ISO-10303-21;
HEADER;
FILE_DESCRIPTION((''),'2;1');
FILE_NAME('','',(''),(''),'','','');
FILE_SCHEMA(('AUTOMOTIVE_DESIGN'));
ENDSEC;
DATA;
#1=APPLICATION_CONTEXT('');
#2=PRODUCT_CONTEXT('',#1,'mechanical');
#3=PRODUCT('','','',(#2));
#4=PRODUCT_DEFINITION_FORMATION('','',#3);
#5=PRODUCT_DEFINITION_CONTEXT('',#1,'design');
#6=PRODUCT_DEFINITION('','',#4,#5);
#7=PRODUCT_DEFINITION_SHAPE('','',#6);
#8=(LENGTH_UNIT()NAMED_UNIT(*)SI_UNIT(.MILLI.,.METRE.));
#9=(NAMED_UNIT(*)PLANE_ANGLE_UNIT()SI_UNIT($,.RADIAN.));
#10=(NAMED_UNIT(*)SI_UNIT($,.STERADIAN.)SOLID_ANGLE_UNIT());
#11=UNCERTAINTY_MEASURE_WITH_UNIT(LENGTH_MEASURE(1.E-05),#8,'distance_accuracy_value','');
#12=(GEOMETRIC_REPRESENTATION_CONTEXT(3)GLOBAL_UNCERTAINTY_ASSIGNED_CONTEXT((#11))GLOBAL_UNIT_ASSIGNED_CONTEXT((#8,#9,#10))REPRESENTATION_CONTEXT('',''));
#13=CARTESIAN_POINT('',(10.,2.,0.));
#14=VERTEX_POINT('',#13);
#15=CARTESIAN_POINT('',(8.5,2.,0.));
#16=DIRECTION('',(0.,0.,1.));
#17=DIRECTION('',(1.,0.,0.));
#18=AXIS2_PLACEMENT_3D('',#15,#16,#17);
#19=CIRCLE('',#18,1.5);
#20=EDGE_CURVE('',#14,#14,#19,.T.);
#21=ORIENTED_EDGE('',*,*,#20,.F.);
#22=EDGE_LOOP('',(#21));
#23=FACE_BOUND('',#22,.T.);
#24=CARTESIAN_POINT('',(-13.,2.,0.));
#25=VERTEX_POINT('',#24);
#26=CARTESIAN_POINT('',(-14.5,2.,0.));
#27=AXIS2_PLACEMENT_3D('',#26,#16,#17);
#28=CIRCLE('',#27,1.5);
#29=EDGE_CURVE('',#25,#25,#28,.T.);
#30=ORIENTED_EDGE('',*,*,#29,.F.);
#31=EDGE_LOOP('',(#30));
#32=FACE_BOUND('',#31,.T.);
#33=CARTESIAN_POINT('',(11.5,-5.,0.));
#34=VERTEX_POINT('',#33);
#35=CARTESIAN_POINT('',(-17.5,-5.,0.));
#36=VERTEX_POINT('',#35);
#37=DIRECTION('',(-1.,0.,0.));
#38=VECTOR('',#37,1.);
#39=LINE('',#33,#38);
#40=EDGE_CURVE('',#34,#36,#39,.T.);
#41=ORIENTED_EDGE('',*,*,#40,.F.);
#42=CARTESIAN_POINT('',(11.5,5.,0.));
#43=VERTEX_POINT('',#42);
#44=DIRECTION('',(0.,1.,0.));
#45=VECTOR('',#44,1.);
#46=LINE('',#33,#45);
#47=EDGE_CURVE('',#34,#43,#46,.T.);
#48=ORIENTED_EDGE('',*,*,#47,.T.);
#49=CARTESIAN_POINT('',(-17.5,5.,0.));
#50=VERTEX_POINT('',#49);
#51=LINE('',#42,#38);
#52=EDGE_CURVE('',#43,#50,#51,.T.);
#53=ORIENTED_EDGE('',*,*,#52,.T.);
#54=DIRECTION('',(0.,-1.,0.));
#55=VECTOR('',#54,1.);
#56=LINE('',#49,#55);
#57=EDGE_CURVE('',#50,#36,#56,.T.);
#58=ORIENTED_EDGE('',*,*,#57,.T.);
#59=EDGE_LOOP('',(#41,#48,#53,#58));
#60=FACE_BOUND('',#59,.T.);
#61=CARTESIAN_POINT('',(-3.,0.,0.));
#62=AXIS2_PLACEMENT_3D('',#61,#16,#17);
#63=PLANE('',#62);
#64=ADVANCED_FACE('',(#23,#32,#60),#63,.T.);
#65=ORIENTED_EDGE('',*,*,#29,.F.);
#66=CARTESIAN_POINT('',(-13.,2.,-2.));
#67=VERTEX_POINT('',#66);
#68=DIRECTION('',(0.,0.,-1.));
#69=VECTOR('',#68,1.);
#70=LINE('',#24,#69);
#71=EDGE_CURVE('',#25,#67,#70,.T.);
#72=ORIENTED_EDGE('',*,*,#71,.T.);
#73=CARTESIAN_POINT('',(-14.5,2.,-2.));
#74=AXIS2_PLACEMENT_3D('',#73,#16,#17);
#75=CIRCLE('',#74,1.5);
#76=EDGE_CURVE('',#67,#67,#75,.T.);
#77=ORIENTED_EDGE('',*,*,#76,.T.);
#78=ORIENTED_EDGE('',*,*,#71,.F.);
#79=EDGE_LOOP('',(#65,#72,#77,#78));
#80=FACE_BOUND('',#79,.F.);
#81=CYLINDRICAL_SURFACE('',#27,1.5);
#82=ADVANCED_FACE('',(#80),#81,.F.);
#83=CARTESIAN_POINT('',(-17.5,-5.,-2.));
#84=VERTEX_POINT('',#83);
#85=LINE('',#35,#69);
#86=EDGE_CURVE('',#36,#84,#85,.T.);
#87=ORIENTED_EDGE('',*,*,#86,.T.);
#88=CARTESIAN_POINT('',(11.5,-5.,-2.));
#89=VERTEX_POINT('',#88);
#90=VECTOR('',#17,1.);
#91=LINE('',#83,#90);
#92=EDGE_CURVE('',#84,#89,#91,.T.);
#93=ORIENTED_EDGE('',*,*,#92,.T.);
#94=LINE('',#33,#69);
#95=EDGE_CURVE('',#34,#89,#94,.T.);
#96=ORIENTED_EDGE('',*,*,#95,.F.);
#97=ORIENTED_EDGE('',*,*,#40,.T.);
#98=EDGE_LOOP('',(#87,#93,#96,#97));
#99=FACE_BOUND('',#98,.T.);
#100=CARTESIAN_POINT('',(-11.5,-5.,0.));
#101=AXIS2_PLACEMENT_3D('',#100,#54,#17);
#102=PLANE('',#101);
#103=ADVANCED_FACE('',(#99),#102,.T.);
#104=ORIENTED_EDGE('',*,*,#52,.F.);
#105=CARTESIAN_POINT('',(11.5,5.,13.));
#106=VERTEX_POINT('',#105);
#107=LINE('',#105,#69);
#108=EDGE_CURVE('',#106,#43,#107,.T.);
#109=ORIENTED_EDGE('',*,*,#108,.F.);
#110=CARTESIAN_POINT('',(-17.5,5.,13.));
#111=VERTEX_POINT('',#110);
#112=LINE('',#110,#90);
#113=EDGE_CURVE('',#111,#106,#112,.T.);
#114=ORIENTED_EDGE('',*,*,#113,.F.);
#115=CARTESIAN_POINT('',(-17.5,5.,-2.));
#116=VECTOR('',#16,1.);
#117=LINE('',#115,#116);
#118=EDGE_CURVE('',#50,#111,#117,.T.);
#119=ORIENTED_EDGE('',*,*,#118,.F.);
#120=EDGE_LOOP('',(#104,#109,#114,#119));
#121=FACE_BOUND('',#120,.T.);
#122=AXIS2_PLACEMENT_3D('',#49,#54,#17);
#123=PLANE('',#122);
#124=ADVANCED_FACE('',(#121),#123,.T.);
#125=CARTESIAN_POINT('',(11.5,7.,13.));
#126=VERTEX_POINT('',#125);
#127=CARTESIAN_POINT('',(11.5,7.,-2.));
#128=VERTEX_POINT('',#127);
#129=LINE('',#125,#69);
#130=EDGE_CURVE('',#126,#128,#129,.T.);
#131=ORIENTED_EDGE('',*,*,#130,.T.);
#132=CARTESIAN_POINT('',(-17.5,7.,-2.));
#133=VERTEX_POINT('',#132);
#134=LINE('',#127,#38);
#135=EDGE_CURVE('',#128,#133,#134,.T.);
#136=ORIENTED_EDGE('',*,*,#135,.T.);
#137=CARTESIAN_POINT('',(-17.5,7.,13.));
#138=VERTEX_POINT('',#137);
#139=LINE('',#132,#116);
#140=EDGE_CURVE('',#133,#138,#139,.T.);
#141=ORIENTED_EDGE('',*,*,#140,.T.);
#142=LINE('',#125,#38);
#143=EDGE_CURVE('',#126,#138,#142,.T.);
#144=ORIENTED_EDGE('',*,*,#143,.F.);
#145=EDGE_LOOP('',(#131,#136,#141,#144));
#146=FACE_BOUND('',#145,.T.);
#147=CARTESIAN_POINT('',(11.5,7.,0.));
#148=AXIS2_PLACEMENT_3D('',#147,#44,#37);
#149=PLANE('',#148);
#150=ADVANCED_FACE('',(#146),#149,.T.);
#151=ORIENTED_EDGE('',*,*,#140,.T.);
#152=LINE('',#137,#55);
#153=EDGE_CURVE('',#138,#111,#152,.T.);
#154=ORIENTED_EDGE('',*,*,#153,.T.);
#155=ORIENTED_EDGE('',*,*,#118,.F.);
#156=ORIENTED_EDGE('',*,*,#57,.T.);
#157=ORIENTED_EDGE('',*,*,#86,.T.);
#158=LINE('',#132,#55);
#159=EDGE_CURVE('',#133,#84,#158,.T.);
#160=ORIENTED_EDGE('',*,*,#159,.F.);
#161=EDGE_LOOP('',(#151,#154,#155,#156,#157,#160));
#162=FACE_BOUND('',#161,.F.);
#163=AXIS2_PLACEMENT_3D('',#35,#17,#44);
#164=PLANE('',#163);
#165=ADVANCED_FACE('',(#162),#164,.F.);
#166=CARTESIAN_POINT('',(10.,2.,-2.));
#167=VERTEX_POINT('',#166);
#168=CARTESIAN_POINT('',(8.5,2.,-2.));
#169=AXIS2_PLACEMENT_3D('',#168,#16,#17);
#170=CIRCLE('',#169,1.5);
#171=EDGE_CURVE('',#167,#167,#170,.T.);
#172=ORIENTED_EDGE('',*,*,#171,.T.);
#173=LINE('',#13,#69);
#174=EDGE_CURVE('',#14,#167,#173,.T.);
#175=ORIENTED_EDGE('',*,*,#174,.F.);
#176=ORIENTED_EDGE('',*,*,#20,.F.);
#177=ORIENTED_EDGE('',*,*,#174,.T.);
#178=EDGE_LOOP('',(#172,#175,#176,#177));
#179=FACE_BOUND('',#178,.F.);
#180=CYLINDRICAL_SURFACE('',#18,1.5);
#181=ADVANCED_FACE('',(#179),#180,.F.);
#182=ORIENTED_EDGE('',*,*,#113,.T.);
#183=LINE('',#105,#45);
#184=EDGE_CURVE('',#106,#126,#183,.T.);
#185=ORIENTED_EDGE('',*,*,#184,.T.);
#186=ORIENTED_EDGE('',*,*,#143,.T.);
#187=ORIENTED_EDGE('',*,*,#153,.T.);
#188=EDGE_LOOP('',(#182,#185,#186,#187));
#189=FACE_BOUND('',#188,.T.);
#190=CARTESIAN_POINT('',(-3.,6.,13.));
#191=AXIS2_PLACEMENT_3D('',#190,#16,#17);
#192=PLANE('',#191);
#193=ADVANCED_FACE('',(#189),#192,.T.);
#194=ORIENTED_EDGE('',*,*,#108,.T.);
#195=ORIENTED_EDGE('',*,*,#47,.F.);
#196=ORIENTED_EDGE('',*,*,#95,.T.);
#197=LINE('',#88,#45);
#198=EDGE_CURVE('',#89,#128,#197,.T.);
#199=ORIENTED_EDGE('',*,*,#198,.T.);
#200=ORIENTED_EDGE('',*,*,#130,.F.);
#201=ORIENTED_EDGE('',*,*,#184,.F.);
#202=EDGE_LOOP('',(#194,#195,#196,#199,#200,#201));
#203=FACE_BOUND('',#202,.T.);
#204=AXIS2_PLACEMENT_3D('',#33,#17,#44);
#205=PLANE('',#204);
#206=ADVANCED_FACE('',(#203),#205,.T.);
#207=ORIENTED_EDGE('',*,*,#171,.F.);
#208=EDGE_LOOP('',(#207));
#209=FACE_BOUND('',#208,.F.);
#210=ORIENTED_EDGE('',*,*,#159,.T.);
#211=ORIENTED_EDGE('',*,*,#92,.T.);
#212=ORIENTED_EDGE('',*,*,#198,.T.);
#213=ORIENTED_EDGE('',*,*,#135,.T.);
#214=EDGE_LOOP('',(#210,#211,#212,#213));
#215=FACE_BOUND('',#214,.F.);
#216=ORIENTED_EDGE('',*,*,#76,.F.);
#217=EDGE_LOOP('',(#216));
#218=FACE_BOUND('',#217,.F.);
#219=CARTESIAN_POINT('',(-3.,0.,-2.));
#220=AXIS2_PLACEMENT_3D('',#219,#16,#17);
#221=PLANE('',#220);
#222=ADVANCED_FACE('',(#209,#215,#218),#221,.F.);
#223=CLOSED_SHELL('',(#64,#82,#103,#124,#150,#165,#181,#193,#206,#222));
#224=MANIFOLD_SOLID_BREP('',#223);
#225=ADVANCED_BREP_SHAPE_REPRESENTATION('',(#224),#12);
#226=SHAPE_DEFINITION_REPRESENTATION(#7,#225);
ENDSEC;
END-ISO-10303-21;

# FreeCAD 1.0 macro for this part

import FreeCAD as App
import Part
import Sketcher
from FreeCAD import Vector

doc = App.newDocument("Part")
body = doc.addObject("PartDesign::Body", "Body")

# Sketch on XY plane
sketch1 = body.newObject("Sketcher::SketchObject", "Sketch")
sketch1.AttachmentSupport = (doc.getObject("XY_Plane"), [""])
sketch1.MapMode = "FlatFace"
sketch1.addGeometry(Part.LineSegment(Vector(-18, -5, 0), Vector(12, -5, 0)), False)
sketch1.addGeometry(Part.LineSegment(Vector(12, -5, 0), Vector(12, 5, 0)), False)
sketch1.addGeometry(Part.LineSegment(Vector(12, 5, 0), Vector(-18, 5, 0)), False)
sketch1.addGeometry(Part.LineSegment(Vector(-18, 5, 0), Vector(-18, -5, 0)), False)
sketch1.addConstraint(Sketcher.Constraint("Coincident", 0, 2, 1, 1))
sketch1.addConstraint(Sketcher.Constraint("Coincident", 1, 2, 2, 1))
sketch1.addConstraint(Sketcher.Constraint("Coincident", 2, 2, 3, 1))
sketch1.addConstraint(Sketcher.Constraint("Coincident", 3, 2, 0, 1))
sketch1.addConstraint(Sketcher.Constraint("Horizontal", 0))
sketch1.addConstraint(Sketcher.Constraint("Vertical", 1))
sketch1.addConstraint(Sketcher.Constraint("Horizontal", 2))
sketch1.addConstraint(Sketcher.Constraint("Vertical", 3))
sketch1.addConstraint(Sketcher.Constraint("DistanceX", 0, 1, 0, 2, 29.0))
sketch1.addConstraint(Sketcher.Constraint("DistanceY", 1, 1, 1, 2, 10.0))
sketch1.addConstraint(Sketcher.Constraint("DistanceY", 0, 2, -1, 1, 5.0))
sketch1.addConstraint(Sketcher.Constraint("DistanceX", -1, 1, 0, 2, 11.5))
pad1 = body.newObject("PartDesign::Pad", "Pad")
pad1.Profile = sketch1
pad1.Length = 2
pad1.Reversed = True

# Sketch on XY plane
sketch2 = body.newObject("Sketcher::SketchObject", "Sketch001")
sketch2.AttachmentSupport = (doc.getObject("XY_Plane"), [""])
sketch2.MapMode = "FlatFace"
sketch2.addGeometry(Part.Circle(Vector(-14.5, 2, 0), Vector(0, 0, 1), 1.5), False)
sketch2.addGeometry(Part.Circle(Vector(8.5, 2, 0), Vector(0, 0, 1), 1.5), False)
sketch2.addConstraint(Sketcher.Constraint("Equal", 0, 1))
sketch2.addConstraint(Sketcher.Constraint("Horizontal", 0, 3, 1, 3))
sketch2.addConstraint(Sketcher.Constraint("Diameter", 0, 3.0))
sketch2.addConstraint(Sketcher.Constraint("DistanceY", -1, 1, 0, 3, 2.0))
sketch2.addConstraint(Sketcher.Constraint("DistanceX", 0, 3, 1, 3, 23.0))
sketch2.addConstraint(Sketcher.Constraint("DistanceX", 0, 3, -1, 1, 14.5))
pocket1 = body.newObject("PartDesign::Pocket", "Pocket")
pocket1.Profile = sketch2
pocket1.Length = 28.6667
pocket1.Midplane = True

# Sketch on XY plane
sketch3 = body.newObject("Sketcher::SketchObject", "Sketch002")
sketch3.AttachmentSupport = (doc.getObject("XY_Plane"), [""])
sketch3.MapMode = "FlatFace"
sketch3.addGeometry(Part.LineSegment(Vector(11.5, 5, 0), Vector(11.5, 7, 0)), False)
sketch3.addGeometry(Part.LineSegment(Vector(11.5, 7, 0), Vector(-17.5, 7, 0)), False)
sketch3.addGeometry(Part.LineSegment(Vector(-17.5, 7, 0), Vector(-17.5, 5, 0)), False)
sketch3.addGeometry(Part.LineSegment(Vector(-17.5, 5, 0), Vector(11.5, 5, 0)), False)
sketch3.addConstraint(Sketcher.Constraint("Coincident", 0, 2, 1, 1))
sketch3.addConstraint(Sketcher.Constraint("Coincident", 1, 2, 2, 1))
sketch3.addConstraint(Sketcher.Constraint("Coincident", 2, 2, 3, 1))
sketch3.addConstraint(Sketcher.Constraint("Coincident", 3, 2, 0, 1))
sketch3.addConstraint(Sketcher.Constraint("Vertical", 0))
sketch3.addConstraint(Sketcher.Constraint("Horizontal", 1))
sketch3.addConstraint(Sketcher.Constraint("Vertical", 2))
sketch3.addConstraint(Sketcher.Constraint("Horizontal", 3))
sketch3.addConstraint(Sketcher.Constraint("DistanceX", 1, 2, 1, 1, 29.0))
sketch3.addConstraint(Sketcher.Constraint("DistanceY", 0, 1, 0, 2, 2.0))
sketch3.addConstraint(Sketcher.Constraint("DistanceY", -1, 1, 0, 2, 7.0))
sketch3.addConstraint(Sketcher.Constraint("DistanceX", -1, 1, 0, 2, 11.5))
pad2 = body.newObject("PartDesign::Pad", "Pad001")
pad2.Profile = sketch3
pad2.Type = "TwoLengths"
pad2.Length = 2
pad2.Length2 = 13
pad2.Reversed = True

doc.recompute()
